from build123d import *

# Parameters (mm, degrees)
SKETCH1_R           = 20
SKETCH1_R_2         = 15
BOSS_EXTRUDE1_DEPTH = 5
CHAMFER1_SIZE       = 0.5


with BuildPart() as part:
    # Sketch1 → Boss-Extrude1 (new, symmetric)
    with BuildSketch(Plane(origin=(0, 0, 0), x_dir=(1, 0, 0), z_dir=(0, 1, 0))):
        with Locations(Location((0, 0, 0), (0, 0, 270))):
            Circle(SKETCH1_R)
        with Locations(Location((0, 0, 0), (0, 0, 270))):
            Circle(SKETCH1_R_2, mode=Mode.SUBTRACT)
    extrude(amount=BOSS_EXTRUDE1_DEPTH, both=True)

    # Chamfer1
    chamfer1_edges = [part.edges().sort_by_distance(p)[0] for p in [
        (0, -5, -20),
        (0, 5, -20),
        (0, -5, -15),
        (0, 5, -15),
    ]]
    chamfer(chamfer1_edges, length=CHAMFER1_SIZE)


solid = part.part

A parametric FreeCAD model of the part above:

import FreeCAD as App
import Part
import Sketcher
from FreeCAD import Vector


def edges_at(feature, points):
    """Names of the edges that pass closest to the given points."""
    edges = feature.Shape.Edges
    near = lambda p: min(range(len(edges)), key=lambda i: edges[i].distToShape(Part.Vertex(*p))[0])
    return sorted({f"Edge{near(p) + 1}" for p in points})

doc = App.newDocument("Part")
params = doc.addObject("Spreadsheet::Sheet", "Params")
for row, (alias, value) in enumerate([
    ("sketch1_diameter", "40 mm"),
    ("sketch1_diameter2", "30 mm"),
    ("pad1_length", "10 mm"),
    ("chamfer_size", "0.5 mm"),
], start=1):
    params.set(f"A{row}", alias)
    params.set(f"B{row}", "=" + value)
    params.setAlias(f"B{row}", alias)

body = doc.addObject("PartDesign::Body", "Body")

# Sketch on XZ plane
sketch1 = body.newObject("Sketcher::SketchObject", "Sketch")
sketch1.AttachmentSupport = (doc.getObject("XZ_Plane"), [""])
sketch1.MapMode = "FlatFace"
sketch1.addGeometry([
    Part.Circle(Vector(0, 0, 0), Vector(0, 0, 1), 20),
    Part.Circle(Vector(0, 0, 0), Vector(0, 0, 1), 15),
], False)
sketch1.addConstraint([
    Sketcher.Constraint("Coincident", 0, 3, -1, 1),
    Sketcher.Constraint("Coincident", 1, 3, -1, 1),
    Sketcher.Constraint("Diameter", 0, 40.0),
    Sketcher.Constraint("Diameter", 1, 30.0),
])
sketch1.setExpression("Constraints[2]", "Params.sketch1_diameter")
sketch1.setExpression("Constraints[3]", "Params.sketch1_diameter2")
pad1 = body.newObject("PartDesign::Pad", "Pad")
pad1.Profile = sketch1
pad1.setExpression("Length", "Params.pad1_length")
pad1.Midplane = True
doc.recompute()

chamfer = body.newObject("PartDesign::Chamfer", "Chamfer")
chamfer.Base = (pad1, edges_at(pad1, [
    (0, -5, -20),
    (0, 5, -20),
    (0, -5, -15),
    (0, 5, -15),
]))
chamfer.setExpression("Size", "Params.chamfer_size")

doc.recompute()
